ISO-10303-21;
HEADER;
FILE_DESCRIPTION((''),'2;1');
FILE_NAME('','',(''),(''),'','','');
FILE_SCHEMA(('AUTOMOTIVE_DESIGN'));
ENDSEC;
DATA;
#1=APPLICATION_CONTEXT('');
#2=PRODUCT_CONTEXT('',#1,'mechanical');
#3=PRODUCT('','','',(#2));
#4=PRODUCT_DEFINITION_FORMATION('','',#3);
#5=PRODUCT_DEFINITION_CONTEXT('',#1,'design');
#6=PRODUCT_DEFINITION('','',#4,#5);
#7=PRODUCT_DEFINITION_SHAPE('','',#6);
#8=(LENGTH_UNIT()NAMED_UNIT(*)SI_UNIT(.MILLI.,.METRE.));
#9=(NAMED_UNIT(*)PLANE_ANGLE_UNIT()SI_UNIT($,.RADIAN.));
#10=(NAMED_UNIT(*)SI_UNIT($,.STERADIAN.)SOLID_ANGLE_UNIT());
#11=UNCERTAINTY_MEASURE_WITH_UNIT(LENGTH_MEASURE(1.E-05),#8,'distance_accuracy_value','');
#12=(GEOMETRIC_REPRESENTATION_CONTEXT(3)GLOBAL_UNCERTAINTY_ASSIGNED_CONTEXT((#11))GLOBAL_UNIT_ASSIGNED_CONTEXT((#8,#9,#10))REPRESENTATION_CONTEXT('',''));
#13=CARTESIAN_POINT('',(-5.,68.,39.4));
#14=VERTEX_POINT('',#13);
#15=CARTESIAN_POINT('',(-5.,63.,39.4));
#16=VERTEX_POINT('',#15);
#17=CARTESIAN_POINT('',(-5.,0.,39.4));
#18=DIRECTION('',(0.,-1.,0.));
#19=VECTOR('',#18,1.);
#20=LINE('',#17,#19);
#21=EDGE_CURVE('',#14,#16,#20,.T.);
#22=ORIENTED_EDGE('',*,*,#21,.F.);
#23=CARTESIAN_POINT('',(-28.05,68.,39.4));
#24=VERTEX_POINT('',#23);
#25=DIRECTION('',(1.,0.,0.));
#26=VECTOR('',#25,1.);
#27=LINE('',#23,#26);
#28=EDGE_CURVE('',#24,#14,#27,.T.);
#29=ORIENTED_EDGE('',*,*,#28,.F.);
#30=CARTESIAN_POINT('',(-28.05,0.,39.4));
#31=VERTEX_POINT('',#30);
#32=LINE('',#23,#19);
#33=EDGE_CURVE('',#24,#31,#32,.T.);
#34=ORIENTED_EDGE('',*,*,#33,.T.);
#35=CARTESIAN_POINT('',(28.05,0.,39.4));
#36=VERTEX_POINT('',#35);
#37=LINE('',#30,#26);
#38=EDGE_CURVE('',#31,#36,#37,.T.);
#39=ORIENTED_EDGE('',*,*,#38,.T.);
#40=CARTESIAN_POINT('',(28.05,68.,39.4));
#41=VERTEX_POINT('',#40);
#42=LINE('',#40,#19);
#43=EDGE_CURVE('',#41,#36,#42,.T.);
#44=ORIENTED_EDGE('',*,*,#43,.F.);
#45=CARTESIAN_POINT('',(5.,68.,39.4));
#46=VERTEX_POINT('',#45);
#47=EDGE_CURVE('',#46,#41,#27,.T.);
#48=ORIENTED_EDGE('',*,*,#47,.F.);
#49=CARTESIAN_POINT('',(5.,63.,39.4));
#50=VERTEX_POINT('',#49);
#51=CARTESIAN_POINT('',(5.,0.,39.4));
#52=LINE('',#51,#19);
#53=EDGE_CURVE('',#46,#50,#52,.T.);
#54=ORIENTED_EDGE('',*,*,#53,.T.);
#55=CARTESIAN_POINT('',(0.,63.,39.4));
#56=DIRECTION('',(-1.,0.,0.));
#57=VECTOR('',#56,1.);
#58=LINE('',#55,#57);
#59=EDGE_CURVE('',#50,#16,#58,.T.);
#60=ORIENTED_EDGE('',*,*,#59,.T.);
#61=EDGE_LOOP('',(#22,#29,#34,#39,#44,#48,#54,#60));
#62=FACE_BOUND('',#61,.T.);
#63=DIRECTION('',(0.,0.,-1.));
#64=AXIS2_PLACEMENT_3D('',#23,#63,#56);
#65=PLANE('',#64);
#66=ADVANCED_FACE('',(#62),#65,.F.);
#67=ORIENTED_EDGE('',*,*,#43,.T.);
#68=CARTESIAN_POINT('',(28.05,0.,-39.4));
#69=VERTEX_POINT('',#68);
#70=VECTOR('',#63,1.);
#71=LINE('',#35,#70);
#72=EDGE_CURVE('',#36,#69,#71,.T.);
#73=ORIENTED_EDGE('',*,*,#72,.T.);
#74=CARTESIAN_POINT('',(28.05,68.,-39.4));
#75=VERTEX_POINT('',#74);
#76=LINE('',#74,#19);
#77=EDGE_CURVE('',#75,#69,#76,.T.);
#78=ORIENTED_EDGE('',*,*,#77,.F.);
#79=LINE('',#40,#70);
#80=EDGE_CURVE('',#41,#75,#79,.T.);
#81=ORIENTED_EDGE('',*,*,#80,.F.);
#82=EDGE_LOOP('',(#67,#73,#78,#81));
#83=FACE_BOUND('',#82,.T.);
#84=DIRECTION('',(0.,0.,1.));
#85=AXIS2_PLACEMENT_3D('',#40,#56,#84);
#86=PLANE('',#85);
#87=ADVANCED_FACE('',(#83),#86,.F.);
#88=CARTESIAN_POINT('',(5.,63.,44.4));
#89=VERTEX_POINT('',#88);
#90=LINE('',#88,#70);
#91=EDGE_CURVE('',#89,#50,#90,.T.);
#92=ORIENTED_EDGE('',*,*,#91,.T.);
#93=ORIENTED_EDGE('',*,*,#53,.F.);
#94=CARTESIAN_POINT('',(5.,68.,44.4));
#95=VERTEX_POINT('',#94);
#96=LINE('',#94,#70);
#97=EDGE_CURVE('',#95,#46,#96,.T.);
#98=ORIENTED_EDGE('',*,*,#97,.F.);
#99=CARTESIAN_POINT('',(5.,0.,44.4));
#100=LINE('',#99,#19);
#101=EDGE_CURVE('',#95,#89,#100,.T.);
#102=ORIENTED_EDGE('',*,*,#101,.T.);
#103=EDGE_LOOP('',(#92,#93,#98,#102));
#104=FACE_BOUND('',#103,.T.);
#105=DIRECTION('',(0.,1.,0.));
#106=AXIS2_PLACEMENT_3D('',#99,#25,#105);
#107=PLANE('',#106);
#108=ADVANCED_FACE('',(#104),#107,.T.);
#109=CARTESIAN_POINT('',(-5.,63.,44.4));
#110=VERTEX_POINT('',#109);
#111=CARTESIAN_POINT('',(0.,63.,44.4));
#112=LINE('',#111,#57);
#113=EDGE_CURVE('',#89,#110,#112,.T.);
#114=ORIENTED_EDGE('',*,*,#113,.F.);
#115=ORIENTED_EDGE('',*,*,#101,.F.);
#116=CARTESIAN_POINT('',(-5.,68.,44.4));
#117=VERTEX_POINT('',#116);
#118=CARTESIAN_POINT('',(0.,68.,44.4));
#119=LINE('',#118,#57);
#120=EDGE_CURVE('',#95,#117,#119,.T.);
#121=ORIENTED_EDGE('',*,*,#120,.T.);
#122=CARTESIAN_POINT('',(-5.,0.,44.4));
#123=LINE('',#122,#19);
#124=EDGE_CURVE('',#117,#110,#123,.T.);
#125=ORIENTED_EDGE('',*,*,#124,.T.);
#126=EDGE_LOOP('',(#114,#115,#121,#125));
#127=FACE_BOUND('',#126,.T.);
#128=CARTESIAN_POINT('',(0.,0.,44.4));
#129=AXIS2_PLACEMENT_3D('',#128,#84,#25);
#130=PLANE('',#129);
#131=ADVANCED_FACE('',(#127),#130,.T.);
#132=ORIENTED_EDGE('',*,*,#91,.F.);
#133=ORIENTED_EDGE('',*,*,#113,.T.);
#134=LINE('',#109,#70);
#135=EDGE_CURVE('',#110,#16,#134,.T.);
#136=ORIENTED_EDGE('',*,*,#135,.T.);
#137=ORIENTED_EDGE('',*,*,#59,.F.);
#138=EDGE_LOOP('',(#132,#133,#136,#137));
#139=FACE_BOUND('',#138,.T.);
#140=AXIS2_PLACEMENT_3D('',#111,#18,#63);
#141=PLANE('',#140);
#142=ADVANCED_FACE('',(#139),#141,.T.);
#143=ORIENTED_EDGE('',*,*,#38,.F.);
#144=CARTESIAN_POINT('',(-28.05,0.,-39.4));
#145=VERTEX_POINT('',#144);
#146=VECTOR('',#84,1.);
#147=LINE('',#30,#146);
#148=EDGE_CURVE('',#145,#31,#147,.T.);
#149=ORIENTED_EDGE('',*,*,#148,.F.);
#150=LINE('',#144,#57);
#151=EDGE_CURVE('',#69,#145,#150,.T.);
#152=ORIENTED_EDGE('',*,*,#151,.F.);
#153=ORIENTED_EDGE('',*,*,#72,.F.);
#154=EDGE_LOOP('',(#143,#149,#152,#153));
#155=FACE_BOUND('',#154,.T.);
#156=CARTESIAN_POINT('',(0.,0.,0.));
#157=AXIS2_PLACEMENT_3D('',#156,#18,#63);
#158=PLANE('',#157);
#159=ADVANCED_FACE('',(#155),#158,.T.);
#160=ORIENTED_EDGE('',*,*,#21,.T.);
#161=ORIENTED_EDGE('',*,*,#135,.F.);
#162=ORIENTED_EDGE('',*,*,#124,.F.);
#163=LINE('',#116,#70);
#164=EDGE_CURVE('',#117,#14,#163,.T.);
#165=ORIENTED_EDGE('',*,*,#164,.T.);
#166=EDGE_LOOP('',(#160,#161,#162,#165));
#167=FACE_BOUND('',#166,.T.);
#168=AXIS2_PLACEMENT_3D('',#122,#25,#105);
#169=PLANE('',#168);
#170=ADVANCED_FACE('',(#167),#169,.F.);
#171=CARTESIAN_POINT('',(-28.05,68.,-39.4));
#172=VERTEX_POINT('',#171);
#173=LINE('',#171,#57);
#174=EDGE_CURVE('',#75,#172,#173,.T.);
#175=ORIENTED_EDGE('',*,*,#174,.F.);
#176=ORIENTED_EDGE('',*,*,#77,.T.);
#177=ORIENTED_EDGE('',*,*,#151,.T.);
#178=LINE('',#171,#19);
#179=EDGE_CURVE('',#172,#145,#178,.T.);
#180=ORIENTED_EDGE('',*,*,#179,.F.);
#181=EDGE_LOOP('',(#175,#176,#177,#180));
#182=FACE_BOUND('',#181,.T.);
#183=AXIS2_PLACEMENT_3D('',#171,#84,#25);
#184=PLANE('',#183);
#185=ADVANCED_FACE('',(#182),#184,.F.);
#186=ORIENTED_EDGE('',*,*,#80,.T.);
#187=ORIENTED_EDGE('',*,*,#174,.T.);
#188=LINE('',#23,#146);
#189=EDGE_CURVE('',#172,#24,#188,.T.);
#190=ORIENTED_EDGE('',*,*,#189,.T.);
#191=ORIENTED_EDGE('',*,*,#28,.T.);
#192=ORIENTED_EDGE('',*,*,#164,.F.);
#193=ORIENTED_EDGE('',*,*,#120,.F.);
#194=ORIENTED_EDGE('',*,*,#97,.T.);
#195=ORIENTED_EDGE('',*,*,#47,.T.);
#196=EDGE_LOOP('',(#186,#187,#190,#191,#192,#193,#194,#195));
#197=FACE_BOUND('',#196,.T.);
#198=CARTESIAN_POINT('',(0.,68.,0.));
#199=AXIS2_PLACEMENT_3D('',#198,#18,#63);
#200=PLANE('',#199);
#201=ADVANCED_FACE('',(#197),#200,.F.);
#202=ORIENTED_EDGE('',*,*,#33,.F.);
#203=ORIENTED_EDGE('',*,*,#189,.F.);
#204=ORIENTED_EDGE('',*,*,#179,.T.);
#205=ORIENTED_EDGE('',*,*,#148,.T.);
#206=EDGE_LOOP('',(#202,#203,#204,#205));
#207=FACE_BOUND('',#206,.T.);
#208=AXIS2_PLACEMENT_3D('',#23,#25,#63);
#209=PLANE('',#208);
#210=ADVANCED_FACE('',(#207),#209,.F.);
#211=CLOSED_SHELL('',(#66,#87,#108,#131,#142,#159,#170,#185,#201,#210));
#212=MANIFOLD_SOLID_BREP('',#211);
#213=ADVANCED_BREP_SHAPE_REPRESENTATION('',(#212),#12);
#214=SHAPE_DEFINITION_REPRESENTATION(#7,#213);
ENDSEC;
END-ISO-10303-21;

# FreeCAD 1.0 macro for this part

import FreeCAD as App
import Part
import Sketcher
from FreeCAD import Vector
Q = App.Units.Quantity

doc = App.newDocument("Part")
body = doc.addObject("PartDesign::Body", "Body")

sketch1 = doc.addObject("Sketcher::SketchObject", "Sketch")
body.addObject(sketch1)
sketch1.AttachmentSupport = (doc.XZ_Plane, [""])
sketch1.MapMode = "FlatFace"
sketch1.addGeometry(Part.LineSegment(Vector(-28.05, -39.4, 0), Vector(-28.05, 39.4, 0)), False)
sketch1.addGeometry(Part.LineSegment(Vector(-28.05, 39.4, 0), Vector(28.05, 39.4, 0)), False)
sketch1.addGeometry(Part.LineSegment(Vector(28.05, 39.4, 0), Vector(28.05, -39.4, 0)), False)
sketch1.addGeometry(Part.LineSegment(Vector(28.05, -39.4, 0), Vector(-28.05, -39.4, 0)), False)
sketch1.addConstraint(Sketcher.Constraint("Coincident", 0, 2, 1, 1))
sketch1.addConstraint(Sketcher.Constraint("Coincident", 1, 2, 2, 1))
sketch1.addConstraint(Sketcher.Constraint("Coincident", 2, 2, 3, 1))
sketch1.addConstraint(Sketcher.Constraint("Coincident", 3, 2, 0, 1))
sketch1.addConstraint(Sketcher.Constraint("Vertical", 0))
sketch1.addConstraint(Sketcher.Constraint("Horizontal", 1))
sketch1.addConstraint(Sketcher.Constraint("Vertical", 2))
sketch1.addConstraint(Sketcher.Constraint("Horizontal", 3))
sketch1.addConstraint(Sketcher.Constraint("Symmetric", 0, 2, 2, 2, -1, 1))
sketch1.addConstraint(Sketcher.Constraint("DistanceX", 1, 1, 1, 2, Q("56.1 mm")))
sketch1.addConstraint(Sketcher.Constraint("DistanceY", 0, 1, 0, 2, Q("78.8 mm")))
pad1 = doc.addObject("PartDesign::Pad", "Pad")
body.addObject(pad1)
pad1.Profile = sketch1
pad1.Length = 68
pad1.Reversed = True

sketch2 = doc.addObject("Sketcher::SketchObject", "Sketch001")
body.addObject(sketch2)
sketch2.AttachmentSupport = (doc.XY_Plane, [""])
sketch2.MapMode = "FlatFace"
sketch2.AttachmentOffset = App.Placement(Vector(0, 0, 39.4), App.Rotation())
sketch2.addGeometry(Part.LineSegment(Vector(-5, 68, 0), Vector(-5, 63, 0)), False)
sketch2.addGeometry(Part.LineSegment(Vector(-5, 63, 0), Vector(5, 63, 0)), False)
sketch2.addGeometry(Part.LineSegment(Vector(5, 63, 0), Vector(5, 68, 0)), False)
sketch2.addGeometry(Part.LineSegment(Vector(5, 68, 0), Vector(-5, 68, 0)), False)
sketch2.addConstraint(Sketcher.Constraint("Coincident", 0, 2, 1, 1))
sketch2.addConstraint(Sketcher.Constraint("Coincident", 1, 2, 2, 1))
sketch2.addConstraint(Sketcher.Constraint("Coincident", 2, 2, 3, 1))
sketch2.addConstraint(Sketcher.Constraint("Coincident", 3, 2, 0, 1))
sketch2.addConstraint(Sketcher.Constraint("Vertical", 0))
sketch2.addConstraint(Sketcher.Constraint("Horizontal", 1))
sketch2.addConstraint(Sketcher.Constraint("Vertical", 2))
sketch2.addConstraint(Sketcher.Constraint("Horizontal", 3))
sketch2.addConstraint(Sketcher.Constraint("DistanceX", 1, 1, 1, 2, Q("10 mm")))
sketch2.addConstraint(Sketcher.Constraint("DistanceY", 0, 2, 0, 1, Q("5 mm")))
sketch2.addConstraint(Sketcher.Constraint("DistanceX", 0, 2, -1, 1, Q("5 mm")))
sketch2.addConstraint(Sketcher.Constraint("DistanceY", -1, 1, 0, 2, Q("63 mm")))
pad2 = doc.addObject("PartDesign::Pad", "Pad001")
body.addObject(pad2)
pad2.Profile = sketch2
pad2.Length = 5

doc.recompute()
